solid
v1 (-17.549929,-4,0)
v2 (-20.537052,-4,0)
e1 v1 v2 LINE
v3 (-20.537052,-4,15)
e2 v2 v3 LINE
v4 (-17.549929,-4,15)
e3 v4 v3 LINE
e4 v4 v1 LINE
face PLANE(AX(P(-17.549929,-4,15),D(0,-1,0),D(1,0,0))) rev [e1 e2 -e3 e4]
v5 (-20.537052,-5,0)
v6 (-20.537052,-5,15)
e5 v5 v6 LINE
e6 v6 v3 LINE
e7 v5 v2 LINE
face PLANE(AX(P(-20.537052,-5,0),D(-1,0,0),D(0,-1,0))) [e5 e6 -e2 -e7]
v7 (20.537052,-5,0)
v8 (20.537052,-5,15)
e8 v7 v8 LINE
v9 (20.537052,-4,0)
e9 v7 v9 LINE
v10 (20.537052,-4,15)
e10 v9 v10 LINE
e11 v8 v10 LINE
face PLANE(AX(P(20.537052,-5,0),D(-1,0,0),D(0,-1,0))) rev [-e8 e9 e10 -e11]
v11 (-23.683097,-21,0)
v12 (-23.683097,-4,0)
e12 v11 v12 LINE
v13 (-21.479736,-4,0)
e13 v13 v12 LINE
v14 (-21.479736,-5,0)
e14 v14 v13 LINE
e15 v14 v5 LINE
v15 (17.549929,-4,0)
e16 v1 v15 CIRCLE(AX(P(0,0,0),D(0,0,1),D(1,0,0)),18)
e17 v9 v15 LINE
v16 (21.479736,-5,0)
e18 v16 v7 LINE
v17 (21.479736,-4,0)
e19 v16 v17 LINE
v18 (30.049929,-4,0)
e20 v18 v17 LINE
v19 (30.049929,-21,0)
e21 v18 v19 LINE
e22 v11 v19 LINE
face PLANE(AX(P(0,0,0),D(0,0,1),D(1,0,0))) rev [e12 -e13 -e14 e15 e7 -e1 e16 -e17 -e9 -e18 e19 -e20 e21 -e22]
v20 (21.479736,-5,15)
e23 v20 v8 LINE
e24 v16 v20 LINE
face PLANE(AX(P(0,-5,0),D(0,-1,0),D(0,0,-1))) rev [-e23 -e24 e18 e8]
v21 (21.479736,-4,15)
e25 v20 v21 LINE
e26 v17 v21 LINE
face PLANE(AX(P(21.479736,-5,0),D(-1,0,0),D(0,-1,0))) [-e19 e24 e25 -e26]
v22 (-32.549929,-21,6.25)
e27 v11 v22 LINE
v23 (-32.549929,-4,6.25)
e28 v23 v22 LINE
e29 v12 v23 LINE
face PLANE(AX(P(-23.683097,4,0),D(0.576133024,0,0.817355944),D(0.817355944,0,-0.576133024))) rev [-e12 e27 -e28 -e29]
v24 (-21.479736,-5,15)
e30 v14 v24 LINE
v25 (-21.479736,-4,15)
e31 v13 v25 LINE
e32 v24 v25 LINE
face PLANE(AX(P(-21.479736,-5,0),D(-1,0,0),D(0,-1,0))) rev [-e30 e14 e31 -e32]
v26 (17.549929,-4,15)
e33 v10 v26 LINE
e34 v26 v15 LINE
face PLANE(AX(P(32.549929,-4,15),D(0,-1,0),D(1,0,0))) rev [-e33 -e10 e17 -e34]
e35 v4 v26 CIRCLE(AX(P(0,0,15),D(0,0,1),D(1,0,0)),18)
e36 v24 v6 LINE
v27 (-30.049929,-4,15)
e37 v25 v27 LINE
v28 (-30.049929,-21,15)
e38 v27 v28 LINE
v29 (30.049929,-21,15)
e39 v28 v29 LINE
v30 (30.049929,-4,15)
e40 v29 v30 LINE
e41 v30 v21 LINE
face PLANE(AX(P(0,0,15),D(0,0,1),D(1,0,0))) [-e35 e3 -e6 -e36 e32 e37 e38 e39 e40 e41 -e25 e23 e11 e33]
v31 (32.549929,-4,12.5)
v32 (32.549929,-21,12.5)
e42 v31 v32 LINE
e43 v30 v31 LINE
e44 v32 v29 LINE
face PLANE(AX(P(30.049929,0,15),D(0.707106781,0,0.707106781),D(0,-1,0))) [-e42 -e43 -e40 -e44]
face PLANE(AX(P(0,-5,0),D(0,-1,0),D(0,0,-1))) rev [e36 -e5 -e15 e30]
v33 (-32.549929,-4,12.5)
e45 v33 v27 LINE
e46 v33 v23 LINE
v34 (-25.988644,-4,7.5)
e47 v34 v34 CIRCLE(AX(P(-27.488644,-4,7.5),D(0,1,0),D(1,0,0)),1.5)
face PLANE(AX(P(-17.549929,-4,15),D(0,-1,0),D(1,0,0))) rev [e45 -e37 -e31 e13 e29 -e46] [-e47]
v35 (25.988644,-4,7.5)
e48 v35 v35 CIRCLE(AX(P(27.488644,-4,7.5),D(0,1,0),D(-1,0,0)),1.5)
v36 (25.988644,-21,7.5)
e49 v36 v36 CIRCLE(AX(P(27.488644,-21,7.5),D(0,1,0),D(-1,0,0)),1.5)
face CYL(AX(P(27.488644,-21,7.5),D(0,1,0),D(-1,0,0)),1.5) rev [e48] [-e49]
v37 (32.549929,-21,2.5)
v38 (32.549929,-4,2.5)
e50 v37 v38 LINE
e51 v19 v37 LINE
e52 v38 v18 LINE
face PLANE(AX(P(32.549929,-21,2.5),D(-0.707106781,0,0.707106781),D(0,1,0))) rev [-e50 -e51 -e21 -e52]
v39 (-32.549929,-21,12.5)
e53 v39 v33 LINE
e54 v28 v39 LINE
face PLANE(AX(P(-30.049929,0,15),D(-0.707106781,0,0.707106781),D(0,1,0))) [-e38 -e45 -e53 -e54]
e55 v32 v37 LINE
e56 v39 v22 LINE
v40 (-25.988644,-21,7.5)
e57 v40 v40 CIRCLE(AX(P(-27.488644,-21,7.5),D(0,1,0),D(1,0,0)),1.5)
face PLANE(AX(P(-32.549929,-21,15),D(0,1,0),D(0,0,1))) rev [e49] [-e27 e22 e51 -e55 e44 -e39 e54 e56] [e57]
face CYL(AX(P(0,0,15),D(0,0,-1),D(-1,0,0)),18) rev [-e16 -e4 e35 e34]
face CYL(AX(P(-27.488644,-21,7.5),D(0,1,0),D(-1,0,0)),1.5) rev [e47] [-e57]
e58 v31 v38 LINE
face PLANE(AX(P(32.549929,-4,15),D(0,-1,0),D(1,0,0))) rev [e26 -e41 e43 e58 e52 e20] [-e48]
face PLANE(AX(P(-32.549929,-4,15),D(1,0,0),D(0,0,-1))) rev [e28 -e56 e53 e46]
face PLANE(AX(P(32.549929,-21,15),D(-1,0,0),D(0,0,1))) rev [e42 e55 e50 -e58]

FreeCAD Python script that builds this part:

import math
import FreeCAD as App
import Part
import Sketcher

V = App.Vector
Q = App.Units.Quantity


def edges_at(feature, points):
    """Names of the edges that pass closest to the given points."""
    edges = feature.Shape.Edges
    near = lambda p: min(range(len(edges)), key=lambda i: edges[i].distToShape(Part.Vertex(*p))[0])
    return sorted({f"Edge{near(p) + 1}" for p in points})

doc = App.newDocument("Part")
body = doc.addObject("PartDesign::Body", "Body")

# Sketch on XY plane
sketch1 = body.newObject("Sketcher::SketchObject", "Sketch")
sketch1.AttachmentSupport = (doc.getObject("XY_Plane"), [""])
sketch1.MapMode = "FlatFace"
sketch1.addGeometry(Part.LineSegment(V(-18, -4, 0), V(-33, -4, 0)), False)
sketch1.addGeometry(Part.LineSegment(V(-33, -4, 0), V(-33, -21, 0)), False)
sketch1.addGeometry(Part.LineSegment(V(-33, -21, 0), V(33, -21, 0)), False)
sketch1.addGeometry(Part.LineSegment(V(33, -21, 0), V(33, -4, 0)), False)
sketch1.addGeometry(Part.LineSegment(V(33, -4, 0), V(18, -4, 0)), False)
sketch1.addGeometry(Part.ArcOfCircle(Part.Circle(V(0, 0, 0), V(0, 0, 1), 18), math.radians(-167), math.radians(-13)), False)
sketch1.addConstraint(Sketcher.Constraint("Coincident", 0, 2, 1, 1))
sketch1.addConstraint(Sketcher.Constraint("Coincident", 1, 2, 2, 1))
sketch1.addConstraint(Sketcher.Constraint("Coincident", 2, 2, 3, 1))
sketch1.addConstraint(Sketcher.Constraint("Coincident", 3, 2, 4, 1))
sketch1.addConstraint(Sketcher.Constraint("Coincident", 4, 2, 5, 2))
sketch1.addConstraint(Sketcher.Constraint("Coincident", 5, 1, 0, 1))
sketch1.addConstraint(Sketcher.Constraint("Horizontal", 0))
sketch1.addConstraint(Sketcher.Constraint("Vertical", 1))
sketch1.addConstraint(Sketcher.Constraint("Horizontal", 2))
sketch1.addConstraint(Sketcher.Constraint("Vertical", 3))
sketch1.addConstraint(Sketcher.Constraint("Horizontal", 4))
sketch1.addConstraint(Sketcher.Constraint("Coincident", 5, 3, -1, 1))
sketch1.addConstraint(Sketcher.Constraint("Symmetric", 0, 2, 3, 2, -2))
sketch1.addConstraint(Sketcher.Constraint("Radius", 5, Q("18 mm")))
sketch1.addConstraint(Sketcher.Constraint("DistanceX", 0, 2, 0, 1, Q("15 mm")))
sketch1.addConstraint(Sketcher.Constraint("DistanceY", 1, 2, 1, 1, Q("17 mm")))
sketch1.addConstraint(Sketcher.Constraint("DistanceY", 0, 2, -1, 1, Q("4 mm")))
pad1 = body.newObject("PartDesign::Pad", "Pad")
pad1.Profile = sketch1
pad1.Length = 15
doc.recompute()

chamfer = body.newObject("PartDesign::Chamfer", "Chamfer")
chamfer.Base = (pad1, edges_at(pad1, [(-32.55, -12.5, 15), (32.55, -12.5, 15), (32.55, -12.5, 0)]))
chamfer.Size = 2.5

# Sketch on XZ plane
sketch2 = body.newObject("Sketcher::SketchObject", "Sketch001")
sketch2.AttachmentSupport = (doc.getObject("XZ_Plane"), [""])
sketch2.MapMode = "FlatFace"
sketch2.AttachmentOffset = App.Placement(V(0, 0, 4), App.Rotation())
sketch2.addGeometry(Part.Circle(V(27.5, 7.5, 0), V(0, 0, 1), 1.5), False)
sketch2.addGeometry(Part.Circle(V(-27.5, 7.5, 0), V(0, 0, 1), 1.5), False)
sketch2.addConstraint(Sketcher.Constraint("Equal", 0, 1))
sketch2.addConstraint(Sketcher.Constraint("Symmetric", 0, 3, 1, 3, -2))
sketch2.addConstraint(Sketcher.Constraint("Diameter", 0, Q("3 mm")))
sketch2.addConstraint(Sketcher.Constraint("DistanceY", -1, 1, 0, 3, Q("7.5 mm")))
sketch2.addConstraint(Sketcher.Constraint("DistanceX", 1, 3, 0, 3, Q("54.977289 mm")))
pocket1 = body.newObject("PartDesign::Pocket", "Pocket")
pocket1.Profile = sketch2
pocket1.Type = "ThroughAll"
pocket1.Reversed = True

# Sketch on XZ plane
sketch3 = body.newObject("Sketcher::SketchObject", "Sketch002")
sketch3.AttachmentSupport = (doc.getObject("XZ_Plane"), [""])
sketch3.MapMode = "FlatFace"
sketch3.AttachmentOffset = App.Placement(V(0, 0, 4), App.Rotation())
sketch3.addGeometry(Part.LineSegment(V(-21.5, 0, 0), V(-21.5, 15, 0)), False)
sketch3.addGeometry(Part.LineSegment(V(-21.5, 15, 0), V(-20.5, 15, 0)), False)
sketch3.addGeometry(Part.LineSegment(V(-20.5, 15, 0), V(-20.5, 0, 0)), False)
sketch3.addGeometry(Part.LineSegment(V(-20.5, 0, 0), V(-21.5, 0, 0)), False)
sketch3.addConstraint(Sketcher.Constraint("Coincident", 0, 2, 1, 1))
sketch3.addConstraint(Sketcher.Constraint("Coincident", 1, 2, 2, 1))
sketch3.addConstraint(Sketcher.Constraint("Coincident", 2, 2, 3, 1))
sketch3.addConstraint(Sketcher.Constraint("Coincident", 3, 2, 0, 1))
sketch3.addConstraint(Sketcher.Constraint("Vertical", 0))
sketch3.addConstraint(Sketcher.Constraint("Horizontal", 1))
sketch3.addConstraint(Sketcher.Constraint("Vertical", 2))
sketch3.addConstraint(Sketcher.Constraint("Horizontal", 3))
sketch3.addConstraint(Sketcher.Constraint("PointOnObject", 2, 2, -1))
sketch3.addConstraint(Sketcher.Constraint("DistanceY", 0, 1, 0, 2, Q("15 mm")))
sketch3.addConstraint(Sketcher.Constraint("DistanceX", 1, 1, 1, 2, Q("0.942684 mm")))
sketch3.addConstraint(Sketcher.Constraint("DistanceX", 1, 2, -1, 1, Q("20.537052 mm")))
pocket2 = body.newObject("PartDesign::Pocket", "Pocket001")
pocket2.Profile = sketch3
pocket2.Length = 1
pocket2.Reversed = True
doc.recompute()

mirrored = body.newObject("PartDesign::Mirrored", "Mirrored")
mirrored.Originals = [pocket2]
mirrored.MirrorPlane = (doc.getObject("YZ_Plane"), [""])
body.Tip = mirrored

# Sketch on XZ plane
sketch4 = body.newObject("Sketcher::SketchObject", "Sketch003")
sketch4.AttachmentSupport = (doc.getObject("XZ_Plane"), [""])
sketch4.MapMode = "FlatFace"
sketch4.AttachmentOffset = App.Placement(V(0, 0, 21), App.Rotation())
sketch4.addGeometry(Part.LineSegment(V(-24, 0, 0), V(-33, 6, 0)), False)
sketch4.addGeometry(Part.LineSegment(V(-33, 6, 0), V(-33, 0, 0)), False)
sketch4.addGeometry(Part.LineSegment(V(-33, 0, 0), V(-24, 0, 0)), False)
sketch4.addConstraint(Sketcher.Constraint("Coincident", 0, 2, 1, 1))
sketch4.addConstraint(Sketcher.Constraint("Coincident", 1, 2, 2, 1))
sketch4.addConstraint(Sketcher.Constraint("Coincident", 2, 2, 0, 1))
sketch4.addConstraint(Sketcher.Constraint("Vertical", 1))
sketch4.addConstraint(Sketcher.Constraint("Horizontal", 2))
sketch4.addConstraint(Sketcher.Constraint("PointOnObject", 1, 2, -1))
sketch4.addConstraint(Sketcher.Constraint("DistanceY", 1, 2, 1, 1, Q("6.25 mm")))
sketch4.addConstraint(Sketcher.Constraint("DistanceX", 2, 1, 2, 2, Q("8.866832 mm")))
sketch4.addConstraint(Sketcher.Constraint("DistanceX", 0, 2, -1, 1, Q("32.549929 mm")))
pocket3 = body.newObject("PartDesign::Pocket", "Pocket002")
pocket3.Profile = sketch4
pocket3.Length = 25

doc.recompute()
